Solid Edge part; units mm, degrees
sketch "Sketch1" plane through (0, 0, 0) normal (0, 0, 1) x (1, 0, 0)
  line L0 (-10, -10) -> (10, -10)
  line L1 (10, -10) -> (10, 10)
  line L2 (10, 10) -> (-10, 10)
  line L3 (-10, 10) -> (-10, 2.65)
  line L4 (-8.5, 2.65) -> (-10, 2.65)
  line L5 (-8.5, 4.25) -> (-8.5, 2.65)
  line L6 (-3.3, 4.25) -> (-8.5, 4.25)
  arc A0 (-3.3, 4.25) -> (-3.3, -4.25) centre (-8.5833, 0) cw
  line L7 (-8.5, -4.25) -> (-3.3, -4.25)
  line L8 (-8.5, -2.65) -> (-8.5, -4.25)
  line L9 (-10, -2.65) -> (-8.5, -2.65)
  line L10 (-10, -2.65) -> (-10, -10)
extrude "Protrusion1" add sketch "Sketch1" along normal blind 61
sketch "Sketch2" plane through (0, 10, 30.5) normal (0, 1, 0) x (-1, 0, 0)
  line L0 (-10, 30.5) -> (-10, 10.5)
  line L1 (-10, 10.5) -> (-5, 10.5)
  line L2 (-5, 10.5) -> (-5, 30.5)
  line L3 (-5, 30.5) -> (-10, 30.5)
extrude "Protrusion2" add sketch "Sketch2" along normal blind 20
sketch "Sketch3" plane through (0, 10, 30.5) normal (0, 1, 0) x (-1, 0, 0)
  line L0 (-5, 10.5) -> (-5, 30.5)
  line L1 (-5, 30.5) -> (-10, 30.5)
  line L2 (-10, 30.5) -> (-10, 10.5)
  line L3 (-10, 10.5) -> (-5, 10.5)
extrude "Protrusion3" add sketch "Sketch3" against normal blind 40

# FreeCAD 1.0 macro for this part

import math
import FreeCAD as App
import Part
import Sketcher

V = App.Vector
Q = App.Units.Quantity

doc = App.newDocument("Part")
body = doc.addObject("PartDesign::Body", "Body")

sketch1 = doc.addObject("Sketcher::SketchObject", "Sketch")
body.addObject(sketch1)
sketch1.AttachmentSupport = (doc.XY_Plane, [""])
sketch1.MapMode = "FlatFace"
sketch1.addGeometry(Part.LineSegment(V(-10, -2.65, 0), V(-10, -10, 0)), False)
sketch1.addGeometry(Part.LineSegment(V(-10, -10, 0), V(10, -10, 0)), False)
sketch1.addGeometry(Part.LineSegment(V(10, -10, 0), V(10, 10, 0)), False)
sketch1.addGeometry(Part.LineSegment(V(10, 10, 0), V(-10, 10, 0)), False)
sketch1.addGeometry(Part.LineSegment(V(-10, 10, 0), V(-10, 2.65, 0)), False)
sketch1.addGeometry(Part.LineSegment(V(-10, 2.65, 0), V(-8.5, 2.65, 0)), False)
sketch1.addGeometry(Part.LineSegment(V(-8.5, 2.65, 0), V(-8.5, 4.25, 0)), False)
sketch1.addGeometry(Part.LineSegment(V(-8.5, 4.25, 0), V(-3.3, 4.25, 0)), False)
sketch1.addGeometry(Part.ArcOfCircle(Part.Circle(V(-8.5833, 0, 0), V(0, 0, 1), 6.780543), math.radians(-38.813946), math.radians(38.813946)), False)
sketch1.addGeometry(Part.LineSegment(V(-3.3, -4.25, 0), V(-8.5, -4.25, 0)), False)
sketch1.addGeometry(Part.LineSegment(V(-8.5, -4.25, 0), V(-8.5, -2.65, 0)), False)
sketch1.addGeometry(Part.LineSegment(V(-8.5, -2.65, 0), V(-10, -2.65, 0)), False)
sketch1.addConstraint(Sketcher.Constraint("Coincident", 0, 2, 1, 1))
sketch1.addConstraint(Sketcher.Constraint("Coincident", 1, 2, 2, 1))
sketch1.addConstraint(Sketcher.Constraint("Coincident", 2, 2, 3, 1))
sketch1.addConstraint(Sketcher.Constraint("Coincident", 3, 2, 4, 1))
sketch1.addConstraint(Sketcher.Constraint("Coincident", 4, 2, 5, 1))
sketch1.addConstraint(Sketcher.Constraint("Coincident", 5, 2, 6, 1))
sketch1.addConstraint(Sketcher.Constraint("Coincident", 6, 2, 7, 1))
sketch1.addConstraint(Sketcher.Constraint("Coincident", 7, 2, 8, 2))
sketch1.addConstraint(Sketcher.Constraint("Coincident", 8, 1, 9, 1))
sketch1.addConstraint(Sketcher.Constraint("Coincident", 9, 2, 10, 1))
sketch1.addConstraint(Sketcher.Constraint("Coincident", 10, 2, 11, 1))
sketch1.addConstraint(Sketcher.Constraint("Coincident", 11, 2, 0, 1))
sketch1.addConstraint(Sketcher.Constraint("Vertical", 0))
sketch1.addConstraint(Sketcher.Constraint("Horizontal", 1))
sketch1.addConstraint(Sketcher.Constraint("Vertical", 2))
sketch1.addConstraint(Sketcher.Constraint("Horizontal", 3))
sketch1.addConstraint(Sketcher.Constraint("Vertical", 4))
sketch1.addConstraint(Sketcher.Constraint("Horizontal", 5))
sketch1.addConstraint(Sketcher.Constraint("Vertical", 6))
sketch1.addConstraint(Sketcher.Constraint("Horizontal", 7))
sketch1.addConstraint(Sketcher.Constraint("Horizontal", 9))
sketch1.addConstraint(Sketcher.Constraint("Vertical", 10))
sketch1.addConstraint(Sketcher.Constraint("Horizontal", 11))
sketch1.addConstraint(Sketcher.Constraint("Symmetric", 0, 2, 2, 2, -1, 1))
sketch1.addConstraint(Sketcher.Constraint("Symmetric", 7, 2, 8, 1, -1))
sketch1.addConstraint(Sketcher.Constraint("Symmetric", 5, 2, 10, 2, -1))
sketch1.addConstraint(Sketcher.Constraint("Vertical", 0, 2, 3, 2))
sketch1.addConstraint(Sketcher.Constraint("Equal", 3, 2))
sketch1.addConstraint(Sketcher.Constraint("DistanceX", 1, 1, 1, 2, Q("20 mm")))
sketch1.addConstraint(Sketcher.Constraint("DistanceX", 5, 1, 5, 2, Q("1.5 mm")))
sketch1.addConstraint(Sketcher.Constraint("DistanceX", 7, 1, 7, 2, Q("5.2 mm")))
sketch1.addConstraint(Sketcher.Constraint("DistanceY", 6, 1, 6, 2, Q("1.6 mm")))
sketch1.addConstraint(Sketcher.Constraint("DistanceY", 0, 2, 0, 1, Q("7.35 mm")))
sketch1.addConstraint(Sketcher.Constraint("Radius", 8, Q("6.7805 mm")))
pad1 = doc.addObject("PartDesign::Pad", "Pad")
body.addObject(pad1)
pad1.Profile = sketch1
pad1.Length = 61

sketch2 = doc.addObject("Sketcher::SketchObject", "Sketch001")
body.addObject(sketch2)
sketch2.AttachmentSupport = (doc.XZ_Plane, [""])
sketch2.MapMode = "FlatFace"
sketch2.AttachmentOffset = App.Placement(V(0, 0, -10), App.Rotation())
sketch2.addGeometry(Part.LineSegment(V(5, 61, 0), V(10, 61, 0)), False)
sketch2.addGeometry(Part.LineSegment(V(10, 61, 0), V(10, 41, 0)), False)
sketch2.addGeometry(Part.LineSegment(V(10, 41, 0), V(5, 41, 0)), False)
sketch2.addGeometry(Part.LineSegment(V(5, 41, 0), V(5, 61, 0)), False)
sketch2.addConstraint(Sketcher.Constraint("Coincident", 0, 2, 1, 1))
sketch2.addConstraint(Sketcher.Constraint("Coincident", 1, 2, 2, 1))
sketch2.addConstraint(Sketcher.Constraint("Coincident", 2, 2, 3, 1))
sketch2.addConstraint(Sketcher.Constraint("Coincident", 3, 2, 0, 1))
sketch2.addConstraint(Sketcher.Constraint("Horizontal", 0))
sketch2.addConstraint(Sketcher.Constraint("Vertical", 1))
sketch2.addConstraint(Sketcher.Constraint("Horizontal", 2))
sketch2.addConstraint(Sketcher.Constraint("Vertical", 3))
sketch2.addConstraint(Sketcher.Constraint("DistanceX", 0, 1, 0, 2, Q("5 mm")))
sketch2.addConstraint(Sketcher.Constraint("DistanceY", 1, 2, 1, 1, Q("20 mm")))
sketch2.addConstraint(Sketcher.Constraint("DistanceX", -1, 1, 0, 2, Q("10 mm")))
sketch2.addConstraint(Sketcher.Constraint("DistanceY", -1, 1, 0, 2, Q("61 mm")))
pad2 = doc.addObject("PartDesign::Pad", "Pad001")
body.addObject(pad2)
pad2.Profile = sketch2
pad2.Length = 20
pad2.Reversed = True

sketch3 = doc.addObject("Sketcher::SketchObject", "Sketch002")
body.addObject(sketch3)
sketch3.AttachmentSupport = (doc.XZ_Plane, [""])
sketch3.MapMode = "FlatFace"
sketch3.AttachmentOffset = App.Placement(V(0, 0, -10), App.Rotation())
sketch3.addGeometry(Part.LineSegment(V(10, 41, 0), V(5, 41, 0)), False)
sketch3.addGeometry(Part.LineSegment(V(5, 41, 0), V(5, 61, 0)), False)
sketch3.addGeometry(Part.LineSegment(V(5, 61, 0), V(10, 61, 0)), False)
sketch3.addGeometry(Part.LineSegment(V(10, 61, 0), V(10, 41, 0)), False)
sketch3.addConstraint(Sketcher.Constraint("Coincident", 0, 2, 1, 1))
sketch3.addConstraint(Sketcher.Constraint("Coincident", 1, 2, 2, 1))
sketch3.addConstraint(Sketcher.Constraint("Coincident", 2, 2, 3, 1))
sketch3.addConstraint(Sketcher.Constraint("Coincident", 3, 2, 0, 1))
sketch3.addConstraint(Sketcher.Constraint("Horizontal", 0))
sketch3.addConstraint(Sketcher.Constraint("Vertical", 1))
sketch3.addConstraint(Sketcher.Constraint("Horizontal", 2))
sketch3.addConstraint(Sketcher.Constraint("Vertical", 3))
sketch3.addConstraint(Sketcher.Constraint("DistanceX", 0, 2, 0, 1, Q("5 mm")))
sketch3.addConstraint(Sketcher.Constraint("DistanceY", 1, 1, 1, 2, Q("20 mm")))
sketch3.addConstraint(Sketcher.Constraint("DistanceX", -1, 1, 0, 2, Q("5 mm")))
sketch3.addConstraint(Sketcher.Constraint("DistanceY", -1, 1, 0, 2, Q("41 mm")))
pad3 = doc.addObject("PartDesign::Pad", "Pad002")
body.addObject(pad3)
pad3.Profile = sketch3
pad3.Length = 40

doc.recompute()
